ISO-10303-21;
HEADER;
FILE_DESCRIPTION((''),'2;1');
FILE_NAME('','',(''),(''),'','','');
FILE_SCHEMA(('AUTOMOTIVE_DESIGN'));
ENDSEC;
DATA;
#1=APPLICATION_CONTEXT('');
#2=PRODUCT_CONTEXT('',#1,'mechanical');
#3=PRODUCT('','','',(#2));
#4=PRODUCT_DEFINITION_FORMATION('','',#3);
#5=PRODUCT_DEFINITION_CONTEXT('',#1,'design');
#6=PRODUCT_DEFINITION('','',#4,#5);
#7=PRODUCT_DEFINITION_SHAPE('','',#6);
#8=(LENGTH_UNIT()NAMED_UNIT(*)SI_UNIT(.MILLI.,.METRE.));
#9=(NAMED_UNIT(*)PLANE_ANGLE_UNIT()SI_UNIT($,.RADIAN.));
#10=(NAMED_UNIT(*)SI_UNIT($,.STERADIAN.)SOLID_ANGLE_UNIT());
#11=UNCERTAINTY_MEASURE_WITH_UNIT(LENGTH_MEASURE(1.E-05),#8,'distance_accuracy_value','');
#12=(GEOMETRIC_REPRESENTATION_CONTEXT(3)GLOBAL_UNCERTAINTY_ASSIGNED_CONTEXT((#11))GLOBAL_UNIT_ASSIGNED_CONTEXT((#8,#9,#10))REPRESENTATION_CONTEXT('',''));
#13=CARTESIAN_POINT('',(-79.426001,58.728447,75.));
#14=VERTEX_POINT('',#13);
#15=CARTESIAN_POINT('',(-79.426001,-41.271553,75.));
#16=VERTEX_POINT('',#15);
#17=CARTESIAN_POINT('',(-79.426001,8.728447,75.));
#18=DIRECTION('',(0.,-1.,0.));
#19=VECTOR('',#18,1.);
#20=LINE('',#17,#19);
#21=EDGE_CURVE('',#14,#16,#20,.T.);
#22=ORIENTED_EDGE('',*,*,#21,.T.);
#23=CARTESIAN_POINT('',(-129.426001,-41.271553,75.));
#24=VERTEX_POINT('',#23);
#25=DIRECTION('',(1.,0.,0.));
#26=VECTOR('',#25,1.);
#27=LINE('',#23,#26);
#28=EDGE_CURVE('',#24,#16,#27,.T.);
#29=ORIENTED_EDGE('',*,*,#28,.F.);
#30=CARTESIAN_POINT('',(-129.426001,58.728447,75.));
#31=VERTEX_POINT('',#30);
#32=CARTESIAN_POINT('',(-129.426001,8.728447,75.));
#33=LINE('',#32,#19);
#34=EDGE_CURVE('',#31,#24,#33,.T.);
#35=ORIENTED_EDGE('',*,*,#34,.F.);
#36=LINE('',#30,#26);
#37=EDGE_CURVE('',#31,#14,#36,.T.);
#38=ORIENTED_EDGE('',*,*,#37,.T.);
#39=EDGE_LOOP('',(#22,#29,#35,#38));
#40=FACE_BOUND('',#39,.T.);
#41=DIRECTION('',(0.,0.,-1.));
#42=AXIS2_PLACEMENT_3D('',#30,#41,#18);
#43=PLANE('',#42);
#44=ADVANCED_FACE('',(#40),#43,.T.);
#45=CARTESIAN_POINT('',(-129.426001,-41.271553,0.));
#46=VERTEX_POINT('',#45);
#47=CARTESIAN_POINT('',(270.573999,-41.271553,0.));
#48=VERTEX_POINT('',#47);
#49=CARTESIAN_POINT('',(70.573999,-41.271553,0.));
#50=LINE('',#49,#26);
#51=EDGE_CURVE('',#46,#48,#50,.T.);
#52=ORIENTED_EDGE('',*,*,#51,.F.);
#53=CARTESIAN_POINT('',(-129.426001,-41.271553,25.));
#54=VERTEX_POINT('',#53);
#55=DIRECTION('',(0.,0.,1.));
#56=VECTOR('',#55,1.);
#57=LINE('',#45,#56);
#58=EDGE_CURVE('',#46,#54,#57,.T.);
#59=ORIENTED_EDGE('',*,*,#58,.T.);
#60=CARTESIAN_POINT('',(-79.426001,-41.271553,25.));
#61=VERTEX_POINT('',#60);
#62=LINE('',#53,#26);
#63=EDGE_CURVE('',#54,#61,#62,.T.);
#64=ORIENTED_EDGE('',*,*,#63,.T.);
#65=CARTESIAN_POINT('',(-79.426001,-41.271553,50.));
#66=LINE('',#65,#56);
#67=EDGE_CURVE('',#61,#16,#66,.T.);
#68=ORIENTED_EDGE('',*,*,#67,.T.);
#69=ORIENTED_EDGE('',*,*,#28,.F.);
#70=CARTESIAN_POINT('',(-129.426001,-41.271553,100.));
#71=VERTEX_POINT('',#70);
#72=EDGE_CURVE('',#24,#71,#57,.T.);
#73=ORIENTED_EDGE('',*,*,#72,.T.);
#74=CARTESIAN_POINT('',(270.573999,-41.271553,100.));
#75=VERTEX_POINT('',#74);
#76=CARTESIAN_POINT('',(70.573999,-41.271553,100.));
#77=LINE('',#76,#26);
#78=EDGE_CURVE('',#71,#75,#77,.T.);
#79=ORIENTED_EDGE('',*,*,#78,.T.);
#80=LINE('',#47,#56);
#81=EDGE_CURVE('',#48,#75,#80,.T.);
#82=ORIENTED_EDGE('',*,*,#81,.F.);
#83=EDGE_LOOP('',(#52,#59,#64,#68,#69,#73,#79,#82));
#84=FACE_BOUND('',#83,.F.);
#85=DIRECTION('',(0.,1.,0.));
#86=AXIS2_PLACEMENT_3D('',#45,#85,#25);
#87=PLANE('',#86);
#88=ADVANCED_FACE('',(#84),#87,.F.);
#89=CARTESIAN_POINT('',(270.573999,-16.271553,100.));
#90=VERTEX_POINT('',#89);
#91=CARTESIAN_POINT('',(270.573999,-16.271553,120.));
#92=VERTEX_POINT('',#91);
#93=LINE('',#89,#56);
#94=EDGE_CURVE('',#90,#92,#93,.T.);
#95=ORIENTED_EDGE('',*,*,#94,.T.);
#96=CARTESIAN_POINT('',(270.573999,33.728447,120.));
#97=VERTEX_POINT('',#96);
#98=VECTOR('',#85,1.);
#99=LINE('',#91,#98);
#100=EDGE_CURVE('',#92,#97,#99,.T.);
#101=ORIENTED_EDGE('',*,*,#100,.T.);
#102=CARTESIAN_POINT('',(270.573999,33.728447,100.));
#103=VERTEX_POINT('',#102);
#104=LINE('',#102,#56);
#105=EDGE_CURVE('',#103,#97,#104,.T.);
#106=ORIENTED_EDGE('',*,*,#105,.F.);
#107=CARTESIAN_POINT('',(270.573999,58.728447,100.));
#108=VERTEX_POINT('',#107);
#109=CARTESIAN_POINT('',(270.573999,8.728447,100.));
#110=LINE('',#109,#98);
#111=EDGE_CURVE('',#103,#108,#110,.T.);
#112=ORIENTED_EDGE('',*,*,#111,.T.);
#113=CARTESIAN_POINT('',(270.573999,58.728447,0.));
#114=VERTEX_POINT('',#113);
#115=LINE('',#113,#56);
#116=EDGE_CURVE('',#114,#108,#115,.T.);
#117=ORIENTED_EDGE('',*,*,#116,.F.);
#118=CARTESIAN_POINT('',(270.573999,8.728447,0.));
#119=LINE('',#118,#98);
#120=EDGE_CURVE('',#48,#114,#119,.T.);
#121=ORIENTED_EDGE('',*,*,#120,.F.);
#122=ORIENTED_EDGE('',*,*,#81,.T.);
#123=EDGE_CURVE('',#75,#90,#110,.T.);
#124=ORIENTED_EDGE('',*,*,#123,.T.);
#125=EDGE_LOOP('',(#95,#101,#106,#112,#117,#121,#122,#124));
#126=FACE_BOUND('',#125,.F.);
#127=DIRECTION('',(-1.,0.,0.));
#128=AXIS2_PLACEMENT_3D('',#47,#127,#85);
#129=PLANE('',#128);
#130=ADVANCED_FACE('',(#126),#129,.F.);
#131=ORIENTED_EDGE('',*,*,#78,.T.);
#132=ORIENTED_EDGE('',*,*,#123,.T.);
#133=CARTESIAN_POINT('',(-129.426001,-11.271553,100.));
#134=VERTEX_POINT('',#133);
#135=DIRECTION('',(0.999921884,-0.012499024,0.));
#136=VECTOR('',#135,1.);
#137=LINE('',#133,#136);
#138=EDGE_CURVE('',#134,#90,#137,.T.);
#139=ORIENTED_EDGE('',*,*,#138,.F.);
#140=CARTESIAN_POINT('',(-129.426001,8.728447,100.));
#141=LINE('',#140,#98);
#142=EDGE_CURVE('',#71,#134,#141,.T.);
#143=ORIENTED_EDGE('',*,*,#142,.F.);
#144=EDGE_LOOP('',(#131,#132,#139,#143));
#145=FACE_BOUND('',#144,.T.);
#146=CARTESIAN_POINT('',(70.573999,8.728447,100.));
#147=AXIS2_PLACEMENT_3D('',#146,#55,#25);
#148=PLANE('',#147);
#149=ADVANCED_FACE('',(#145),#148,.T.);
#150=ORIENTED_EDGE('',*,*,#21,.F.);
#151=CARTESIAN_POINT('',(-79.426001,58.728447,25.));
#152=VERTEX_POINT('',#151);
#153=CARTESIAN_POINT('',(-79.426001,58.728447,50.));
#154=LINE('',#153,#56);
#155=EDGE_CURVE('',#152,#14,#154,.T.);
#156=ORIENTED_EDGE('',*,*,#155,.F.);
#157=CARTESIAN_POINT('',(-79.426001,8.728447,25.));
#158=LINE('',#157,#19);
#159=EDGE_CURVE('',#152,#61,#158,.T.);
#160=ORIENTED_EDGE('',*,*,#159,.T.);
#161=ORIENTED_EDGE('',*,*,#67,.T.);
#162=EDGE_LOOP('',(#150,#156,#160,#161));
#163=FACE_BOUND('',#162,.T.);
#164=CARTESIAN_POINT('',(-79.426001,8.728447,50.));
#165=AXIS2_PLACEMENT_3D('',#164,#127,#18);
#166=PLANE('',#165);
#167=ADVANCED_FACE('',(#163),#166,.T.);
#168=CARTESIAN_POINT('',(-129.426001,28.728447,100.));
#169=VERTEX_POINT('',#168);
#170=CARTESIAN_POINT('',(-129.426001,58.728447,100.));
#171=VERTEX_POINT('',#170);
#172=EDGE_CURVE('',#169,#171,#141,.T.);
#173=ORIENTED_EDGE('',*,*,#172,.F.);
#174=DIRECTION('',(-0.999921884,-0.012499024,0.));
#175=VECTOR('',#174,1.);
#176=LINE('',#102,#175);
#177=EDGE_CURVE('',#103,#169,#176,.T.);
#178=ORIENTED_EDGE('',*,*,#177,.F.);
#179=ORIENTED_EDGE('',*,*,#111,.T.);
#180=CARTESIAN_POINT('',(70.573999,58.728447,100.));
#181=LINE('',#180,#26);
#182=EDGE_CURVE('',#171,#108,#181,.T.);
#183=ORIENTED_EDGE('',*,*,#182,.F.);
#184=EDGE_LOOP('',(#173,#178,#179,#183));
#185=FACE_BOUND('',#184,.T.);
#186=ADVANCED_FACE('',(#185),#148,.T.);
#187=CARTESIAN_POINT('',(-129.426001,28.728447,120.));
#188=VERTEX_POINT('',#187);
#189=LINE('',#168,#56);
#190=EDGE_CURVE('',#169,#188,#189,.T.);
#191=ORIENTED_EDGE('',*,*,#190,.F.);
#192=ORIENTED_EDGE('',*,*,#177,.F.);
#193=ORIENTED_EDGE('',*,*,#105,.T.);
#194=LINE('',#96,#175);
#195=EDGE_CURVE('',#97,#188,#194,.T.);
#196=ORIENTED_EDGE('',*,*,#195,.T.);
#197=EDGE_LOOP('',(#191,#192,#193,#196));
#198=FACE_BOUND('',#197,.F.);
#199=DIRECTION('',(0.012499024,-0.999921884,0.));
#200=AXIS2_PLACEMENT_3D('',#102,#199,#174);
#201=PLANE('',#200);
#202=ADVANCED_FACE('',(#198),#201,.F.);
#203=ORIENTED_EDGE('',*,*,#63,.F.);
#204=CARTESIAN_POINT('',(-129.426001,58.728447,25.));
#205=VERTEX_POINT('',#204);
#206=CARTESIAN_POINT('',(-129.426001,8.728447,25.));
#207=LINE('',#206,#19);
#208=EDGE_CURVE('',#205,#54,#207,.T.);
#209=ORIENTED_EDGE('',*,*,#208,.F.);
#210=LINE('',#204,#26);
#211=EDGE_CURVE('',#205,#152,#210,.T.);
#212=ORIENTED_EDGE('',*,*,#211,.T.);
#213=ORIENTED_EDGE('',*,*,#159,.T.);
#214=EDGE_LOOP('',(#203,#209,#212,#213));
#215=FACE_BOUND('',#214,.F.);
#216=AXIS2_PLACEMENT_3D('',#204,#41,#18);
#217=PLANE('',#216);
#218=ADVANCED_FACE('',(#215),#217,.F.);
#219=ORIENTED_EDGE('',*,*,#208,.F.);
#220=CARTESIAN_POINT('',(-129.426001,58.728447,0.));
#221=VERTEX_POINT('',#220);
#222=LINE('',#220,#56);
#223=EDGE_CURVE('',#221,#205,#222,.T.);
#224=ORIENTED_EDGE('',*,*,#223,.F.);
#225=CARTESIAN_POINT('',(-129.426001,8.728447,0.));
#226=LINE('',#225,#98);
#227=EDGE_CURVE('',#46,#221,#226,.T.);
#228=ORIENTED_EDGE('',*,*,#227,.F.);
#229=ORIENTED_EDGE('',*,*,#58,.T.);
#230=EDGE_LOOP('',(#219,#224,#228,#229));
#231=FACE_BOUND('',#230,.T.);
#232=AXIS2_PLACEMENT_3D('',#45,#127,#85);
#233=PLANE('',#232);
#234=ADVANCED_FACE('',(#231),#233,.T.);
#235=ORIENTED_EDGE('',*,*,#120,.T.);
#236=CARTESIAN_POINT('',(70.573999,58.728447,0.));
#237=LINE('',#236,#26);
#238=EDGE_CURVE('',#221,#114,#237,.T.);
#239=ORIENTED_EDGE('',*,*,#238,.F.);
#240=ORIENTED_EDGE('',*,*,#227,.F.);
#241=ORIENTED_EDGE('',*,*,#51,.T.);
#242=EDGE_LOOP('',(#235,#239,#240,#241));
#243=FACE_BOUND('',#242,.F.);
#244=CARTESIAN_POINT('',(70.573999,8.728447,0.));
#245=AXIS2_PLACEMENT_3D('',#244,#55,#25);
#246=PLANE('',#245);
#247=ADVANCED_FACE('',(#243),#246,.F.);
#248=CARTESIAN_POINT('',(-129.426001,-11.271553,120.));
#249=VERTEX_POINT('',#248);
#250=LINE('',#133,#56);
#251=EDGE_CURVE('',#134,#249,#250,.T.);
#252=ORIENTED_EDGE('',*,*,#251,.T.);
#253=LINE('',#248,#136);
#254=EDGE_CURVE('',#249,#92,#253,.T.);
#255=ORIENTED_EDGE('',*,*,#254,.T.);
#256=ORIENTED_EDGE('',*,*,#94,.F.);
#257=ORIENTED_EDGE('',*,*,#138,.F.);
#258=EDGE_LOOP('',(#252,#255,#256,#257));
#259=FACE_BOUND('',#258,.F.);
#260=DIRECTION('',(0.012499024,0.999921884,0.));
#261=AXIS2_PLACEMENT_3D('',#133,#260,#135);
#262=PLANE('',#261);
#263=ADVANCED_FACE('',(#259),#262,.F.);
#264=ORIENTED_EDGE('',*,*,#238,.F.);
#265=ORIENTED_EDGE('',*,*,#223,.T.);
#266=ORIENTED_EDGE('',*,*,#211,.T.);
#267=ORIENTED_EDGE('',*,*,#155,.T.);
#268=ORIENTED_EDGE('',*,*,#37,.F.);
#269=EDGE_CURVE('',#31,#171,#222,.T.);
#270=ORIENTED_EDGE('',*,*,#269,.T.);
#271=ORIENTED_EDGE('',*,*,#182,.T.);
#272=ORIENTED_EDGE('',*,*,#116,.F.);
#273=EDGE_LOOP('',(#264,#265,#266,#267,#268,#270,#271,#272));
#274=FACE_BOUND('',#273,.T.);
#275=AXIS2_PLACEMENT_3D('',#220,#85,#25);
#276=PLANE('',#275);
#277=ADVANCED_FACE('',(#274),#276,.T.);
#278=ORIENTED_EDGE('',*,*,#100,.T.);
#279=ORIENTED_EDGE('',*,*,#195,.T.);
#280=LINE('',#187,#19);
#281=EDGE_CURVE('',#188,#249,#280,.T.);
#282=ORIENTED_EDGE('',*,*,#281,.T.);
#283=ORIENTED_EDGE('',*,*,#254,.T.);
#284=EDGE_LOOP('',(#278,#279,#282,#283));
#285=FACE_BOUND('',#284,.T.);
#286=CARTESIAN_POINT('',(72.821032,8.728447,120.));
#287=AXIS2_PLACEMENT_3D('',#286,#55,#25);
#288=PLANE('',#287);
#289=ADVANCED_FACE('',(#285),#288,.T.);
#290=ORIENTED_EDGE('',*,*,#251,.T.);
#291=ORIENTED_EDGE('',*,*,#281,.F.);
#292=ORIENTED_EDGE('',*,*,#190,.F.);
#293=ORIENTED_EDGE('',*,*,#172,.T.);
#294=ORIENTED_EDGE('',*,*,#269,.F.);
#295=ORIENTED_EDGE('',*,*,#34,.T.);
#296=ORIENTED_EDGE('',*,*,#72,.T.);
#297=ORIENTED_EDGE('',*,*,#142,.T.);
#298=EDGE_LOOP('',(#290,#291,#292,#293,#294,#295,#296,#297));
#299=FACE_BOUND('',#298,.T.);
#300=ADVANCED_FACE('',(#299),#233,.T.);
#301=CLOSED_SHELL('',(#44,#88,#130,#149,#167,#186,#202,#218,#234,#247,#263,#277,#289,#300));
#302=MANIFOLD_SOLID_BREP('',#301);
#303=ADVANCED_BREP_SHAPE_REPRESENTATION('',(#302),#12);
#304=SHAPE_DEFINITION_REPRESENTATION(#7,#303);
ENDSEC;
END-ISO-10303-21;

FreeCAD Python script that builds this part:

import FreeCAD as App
import Part
import Sketcher

V = App.Vector

doc = App.newDocument("Part")
body = doc.addObject("PartDesign::Body", "Body")

# Sketch on XY plane
sketch1 = body.newObject("Sketcher::SketchObject", "Sketch")
sketch1.AttachmentSupport = (doc.getObject("XY_Plane"), [""])
sketch1.MapMode = "FlatFace"
sketch1.addGeometry([
    Part.LineSegment(V(-129, 59, 0), V(-129, -41, 0)),
    Part.LineSegment(V(-129, -41, 0), V(271, -41, 0)),
    Part.LineSegment(V(271, -41, 0), V(271, 59, 0)),
    Part.LineSegment(V(271, 59, 0), V(-129, 59, 0)),
], False)
sketch1.addConstraint([
    Sketcher.Constraint("Coincident", 0, 2, 1, 1),
    Sketcher.Constraint("Coincident", 1, 2, 2, 1),
    Sketcher.Constraint("Coincident", 2, 2, 3, 1),
    Sketcher.Constraint("Coincident", 3, 2, 0, 1),
    Sketcher.Constraint("Vertical", 0),
    Sketcher.Constraint("Horizontal", 1),
    Sketcher.Constraint("Vertical", 2),
    Sketcher.Constraint("Horizontal", 3),
    Sketcher.Constraint("DistanceX", 1, 1, 1, 2, 400.0),
    Sketcher.Constraint("DistanceY", 0, 2, 0, 1, 100.0),
    Sketcher.Constraint("DistanceX", 0, 2, -1, 1, 129.426001),
    Sketcher.Constraint("DistanceY", 0, 2, -1, 1, 41.271553),
])
pad1 = body.newObject("PartDesign::Pad", "Pad")
pad1.Profile = sketch1
pad1.Length = 100

# Sketch on XY plane
sketch2 = body.newObject("Sketcher::SketchObject", "Sketch001")
sketch2.AttachmentSupport = (doc.getObject("XY_Plane"), [""])
sketch2.MapMode = "FlatFace"
sketch2.AttachmentOffset = App.Placement(V(0, 0, 100), App.Rotation())
sketch2.addGeometry([
    Part.LineSegment(V(271, -16, 0), V(271, 34, 0)),
    Part.LineSegment(V(271, 34, 0), V(-129, 29, 0)),
    Part.LineSegment(V(-129, 29, 0), V(-129, -11, 0)),
    Part.LineSegment(V(-129, -11, 0), V(271, -16, 0)),
], False)
sketch2.addConstraint([
    Sketcher.Constraint("Coincident", 0, 2, 1, 1),
    Sketcher.Constraint("Coincident", 1, 2, 2, 1),
    Sketcher.Constraint("Coincident", 2, 2, 3, 1),
    Sketcher.Constraint("Coincident", 3, 2, 0, 1),
    Sketcher.Constraint("Vertical", 0),
    Sketcher.Constraint("Vertical", 2),
    Sketcher.Constraint("Equal", 1, 3),
    Sketcher.Constraint("DistanceY", 0, 1, 0, 2, 50.0),
    Sketcher.Constraint("DistanceY", 2, 2, 2, 1, 40.0),
    Sketcher.Constraint("DistanceX", 1, 2, 0, 2, 400.0),
    Sketcher.Constraint("DistanceX", -1, 1, 0, 2, 270.573999),
    Sketcher.Constraint("DistanceY", -1, 1, 0, 2, 33.728447),
])
pad2 = body.newObject("PartDesign::Pad", "Pad001")
pad2.Profile = sketch2
pad2.Length = 20

# Sketch on YZ plane
sketch3 = body.newObject("Sketcher::SketchObject", "Sketch002")
sketch3.AttachmentSupport = (doc.getObject("YZ_Plane"), [""])
sketch3.MapMode = "FlatFace"
sketch3.AttachmentOffset = App.Placement(V(0, 0, -129.426001), App.Rotation())
sketch3.addGeometry([
    Part.LineSegment(V(59, 75, 0), V(59, 25, 0)),
    Part.LineSegment(V(59, 25, 0), V(-41, 25, 0)),
    Part.LineSegment(V(-41, 25, 0), V(-41, 75, 0)),
    Part.LineSegment(V(-41, 75, 0), V(59, 75, 0)),
], False)
sketch3.addConstraint([
    Sketcher.Constraint("Coincident", 0, 2, 1, 1),
    Sketcher.Constraint("Coincident", 1, 2, 2, 1),
    Sketcher.Constraint("Coincident", 2, 2, 3, 1),
    Sketcher.Constraint("Coincident", 3, 2, 0, 1),
    Sketcher.Constraint("Vertical", 0),
    Sketcher.Constraint("Horizontal", 1),
    Sketcher.Constraint("Vertical", 2),
    Sketcher.Constraint("Horizontal", 3),
    Sketcher.Constraint("DistanceX", 1, 2, 1, 1, 100.0),
    Sketcher.Constraint("DistanceY", 0, 2, 0, 1, 50.0),
    Sketcher.Constraint("DistanceY", -1, 1, 0, 2, 25.0),
    Sketcher.Constraint("DistanceX", -1, 1, 0, 2, 58.728447),
])
pocket1 = body.newObject("PartDesign::Pocket", "Pocket")
pocket1.Profile = sketch3
pocket1.Length = 50
pocket1.Reversed = True

doc.recompute()
